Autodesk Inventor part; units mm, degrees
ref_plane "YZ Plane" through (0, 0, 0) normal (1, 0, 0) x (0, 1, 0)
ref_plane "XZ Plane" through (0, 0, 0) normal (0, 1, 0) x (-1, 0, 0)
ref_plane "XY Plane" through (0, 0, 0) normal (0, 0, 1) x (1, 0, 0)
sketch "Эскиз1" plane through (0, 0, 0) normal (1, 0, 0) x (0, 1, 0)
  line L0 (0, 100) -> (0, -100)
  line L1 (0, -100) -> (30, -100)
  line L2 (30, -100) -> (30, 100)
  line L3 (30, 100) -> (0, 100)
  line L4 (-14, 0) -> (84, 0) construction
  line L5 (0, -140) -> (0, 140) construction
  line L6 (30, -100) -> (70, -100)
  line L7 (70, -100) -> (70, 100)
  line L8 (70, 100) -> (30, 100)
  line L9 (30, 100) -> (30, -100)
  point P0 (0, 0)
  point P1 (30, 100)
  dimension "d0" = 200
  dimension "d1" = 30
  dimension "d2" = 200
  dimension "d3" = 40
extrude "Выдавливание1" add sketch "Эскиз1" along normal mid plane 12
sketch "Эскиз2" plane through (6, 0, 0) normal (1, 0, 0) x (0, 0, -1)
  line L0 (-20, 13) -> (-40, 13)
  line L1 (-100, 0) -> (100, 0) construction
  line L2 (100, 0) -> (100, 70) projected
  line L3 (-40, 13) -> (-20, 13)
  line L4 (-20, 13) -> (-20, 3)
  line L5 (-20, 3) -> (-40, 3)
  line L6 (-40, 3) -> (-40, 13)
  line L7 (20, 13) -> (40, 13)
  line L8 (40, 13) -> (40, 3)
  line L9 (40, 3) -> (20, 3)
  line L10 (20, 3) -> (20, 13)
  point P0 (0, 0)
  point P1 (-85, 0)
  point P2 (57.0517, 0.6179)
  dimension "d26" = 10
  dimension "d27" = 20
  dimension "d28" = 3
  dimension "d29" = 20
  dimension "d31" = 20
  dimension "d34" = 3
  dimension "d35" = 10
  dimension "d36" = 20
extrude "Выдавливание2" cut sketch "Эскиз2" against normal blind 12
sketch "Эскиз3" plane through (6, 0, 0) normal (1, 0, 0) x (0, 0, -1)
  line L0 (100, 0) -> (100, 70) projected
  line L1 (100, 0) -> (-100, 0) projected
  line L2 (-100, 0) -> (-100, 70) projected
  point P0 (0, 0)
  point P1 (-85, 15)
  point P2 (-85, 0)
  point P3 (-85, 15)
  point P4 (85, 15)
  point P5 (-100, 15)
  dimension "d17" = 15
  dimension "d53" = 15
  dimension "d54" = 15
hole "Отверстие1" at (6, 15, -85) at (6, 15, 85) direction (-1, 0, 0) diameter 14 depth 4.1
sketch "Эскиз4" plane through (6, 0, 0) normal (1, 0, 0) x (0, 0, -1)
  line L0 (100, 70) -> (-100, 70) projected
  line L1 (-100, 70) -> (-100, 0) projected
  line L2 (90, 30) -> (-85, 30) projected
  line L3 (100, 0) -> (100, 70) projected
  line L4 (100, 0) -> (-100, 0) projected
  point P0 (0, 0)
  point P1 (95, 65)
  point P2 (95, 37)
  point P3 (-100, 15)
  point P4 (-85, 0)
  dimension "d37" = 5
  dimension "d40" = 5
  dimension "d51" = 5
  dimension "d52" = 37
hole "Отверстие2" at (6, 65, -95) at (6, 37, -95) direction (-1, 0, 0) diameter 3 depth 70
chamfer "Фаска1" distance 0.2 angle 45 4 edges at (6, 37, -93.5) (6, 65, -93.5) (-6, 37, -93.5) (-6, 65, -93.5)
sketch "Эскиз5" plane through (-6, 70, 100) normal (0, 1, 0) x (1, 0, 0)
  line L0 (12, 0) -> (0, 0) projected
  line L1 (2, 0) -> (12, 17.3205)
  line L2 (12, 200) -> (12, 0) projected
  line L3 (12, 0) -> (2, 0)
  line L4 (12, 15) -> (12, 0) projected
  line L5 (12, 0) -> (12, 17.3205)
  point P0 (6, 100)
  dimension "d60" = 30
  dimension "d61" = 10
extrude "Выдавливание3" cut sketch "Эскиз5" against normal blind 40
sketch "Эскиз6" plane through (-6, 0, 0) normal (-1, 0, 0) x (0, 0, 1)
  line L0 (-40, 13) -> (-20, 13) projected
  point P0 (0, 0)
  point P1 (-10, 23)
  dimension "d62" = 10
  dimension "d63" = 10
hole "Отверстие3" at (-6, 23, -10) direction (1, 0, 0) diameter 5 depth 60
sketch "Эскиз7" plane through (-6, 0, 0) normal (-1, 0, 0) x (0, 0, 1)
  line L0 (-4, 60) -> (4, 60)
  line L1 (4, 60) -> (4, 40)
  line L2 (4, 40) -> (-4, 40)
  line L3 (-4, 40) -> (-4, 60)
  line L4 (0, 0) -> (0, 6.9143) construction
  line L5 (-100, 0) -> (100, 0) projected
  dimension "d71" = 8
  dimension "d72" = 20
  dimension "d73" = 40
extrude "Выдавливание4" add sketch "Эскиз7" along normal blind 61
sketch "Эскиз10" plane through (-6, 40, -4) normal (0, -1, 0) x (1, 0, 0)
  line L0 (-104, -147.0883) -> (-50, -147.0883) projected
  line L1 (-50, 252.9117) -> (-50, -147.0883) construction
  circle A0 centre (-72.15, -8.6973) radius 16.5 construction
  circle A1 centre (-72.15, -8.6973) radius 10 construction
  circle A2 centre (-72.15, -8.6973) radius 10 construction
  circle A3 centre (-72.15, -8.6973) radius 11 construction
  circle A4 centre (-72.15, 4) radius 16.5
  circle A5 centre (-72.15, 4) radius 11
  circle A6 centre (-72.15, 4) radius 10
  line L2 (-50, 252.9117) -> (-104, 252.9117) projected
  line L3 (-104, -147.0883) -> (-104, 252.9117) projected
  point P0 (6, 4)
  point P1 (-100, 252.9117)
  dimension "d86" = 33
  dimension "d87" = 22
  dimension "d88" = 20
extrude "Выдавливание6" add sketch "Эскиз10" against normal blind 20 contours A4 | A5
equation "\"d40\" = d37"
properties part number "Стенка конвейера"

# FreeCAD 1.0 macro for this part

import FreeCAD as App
import Part
import Sketcher
from FreeCAD import Vector
Q = App.Units.Quantity


def edges_at(feature, points):
    """Names of the edges that pass closest to the given points."""
    edges = feature.Shape.Edges
    near = lambda p: min(range(len(edges)), key=lambda i: edges[i].distToShape(Part.Vertex(*p))[0])
    return sorted({f"Edge{near(p) + 1}" for p in points})

doc = App.newDocument("Part")
params = doc.addObject("Spreadsheet::Sheet", "Params")
for row, (alias, value) in enumerate([
    ("sketch1_height", "200 mm"),
    ("sketch1_width", "70 mm"),
    ("pad1_length", "12 mm"),
    ("sketch2_width", "10 mm"),
    ("sketch2_height", "20 mm"),
    ("pocket1_length", "12 mm"),
    ("sketch3_diameter", "14 mm"),
    ("hole_diameter", "14 mm"),
    ("hole_depth", "4.1 mm"),
    ("sketch4_diameter", "3 mm"),
    ("hole2_diameter", "3 mm"),
    ("hole2_depth", "70 mm"),
    ("chamfer_size", "0.2 mm"),
    ("sketch5_width", "10 mm"),
    ("pocket2_length", "40 mm"),
    ("sketch6_diameter", "5 mm"),
    ("hole3_diameter", "5 mm"),
    ("hole3_depth", "60 mm"),
    ("sketch7_width", "20 mm"),
    ("sketch7_height", "8 mm"),
    ("pad2_length", "61 mm"),
    ("sketch8_diameter", "33 mm"),
    ("sketch8_diameter2", "20 mm"),
    ("pad3_length", "20 mm"),
], start=1):
    params.set(f"A{row}", alias)
    params.set(f"B{row}", "=" + value)
    params.setAlias(f"B{row}", alias)

body = doc.addObject("PartDesign::Body", "Body")

# Sketch on YZ plane
sketch1 = body.newObject("Sketcher::SketchObject", "Sketch")
sketch1.AttachmentSupport = (doc.getObject("YZ_Plane"), [""])
sketch1.MapMode = "FlatFace"
sketch1.addGeometry([
    Part.LineSegment(Vector(0, 100, 0), Vector(0, -100, 0)),
    Part.LineSegment(Vector(0, -100, 0), Vector(70, -100, 0)),
    Part.LineSegment(Vector(70, -100, 0), Vector(70, 100, 0)),
    Part.LineSegment(Vector(70, 100, 0), Vector(0, 100, 0)),
], False)
sketch1.addConstraint([
    Sketcher.Constraint("Coincident", 0, 2, 1, 1),
    Sketcher.Constraint("Coincident", 1, 2, 2, 1),
    Sketcher.Constraint("Coincident", 2, 2, 3, 1),
    Sketcher.Constraint("Coincident", 3, 2, 0, 1),
    Sketcher.Constraint("Vertical", 0),
    Sketcher.Constraint("Horizontal", 1),
    Sketcher.Constraint("Vertical", 2),
    Sketcher.Constraint("Horizontal", 3),
    Sketcher.Constraint("Symmetric", 0, 2, 3, 2, -1, 1),
    Sketcher.Constraint("DistanceY", 0, 2, 0, 1, 200.0),
    Sketcher.Constraint("DistanceX", 1, 1, 1, 2, 70.0),
])
sketch1.setExpression("Constraints[9]", "Params.sketch1_height")
sketch1.setExpression("Constraints[10]", "Params.sketch1_width")
pad1 = body.newObject("PartDesign::Pad", "Pad")
pad1.Profile = sketch1
pad1.setExpression("Length", "Params.pad1_length")
pad1.Midplane = True

# Sketch on YZ plane
sketch2 = body.newObject("Sketcher::SketchObject", "Sketch001")
sketch2.AttachmentSupport = (doc.getObject("YZ_Plane"), [""])
sketch2.MapMode = "FlatFace"
sketch2.AttachmentOffset = App.Placement(Vector(0, 0, 6), App.Rotation())
sketch2.addGeometry([
    Part.LineSegment(Vector(3, 20, 0), Vector(13, 20, 0)),  # 0
    Part.LineSegment(Vector(13, 20, 0), Vector(13, 40, 0)),  # 1
    Part.LineSegment(Vector(13, 40, 0), Vector(3, 40, 0)),  # 2
    Part.LineSegment(Vector(3, 40, 0), Vector(3, 20, 0)),  # 3
    Part.LineSegment(Vector(13, -40, 0), Vector(13, -20, 0)),  # 4
    Part.LineSegment(Vector(13, -20, 0), Vector(3, -20, 0)),  # 5
    Part.LineSegment(Vector(3, -20, 0), Vector(3, -40, 0)),  # 6
    Part.LineSegment(Vector(3, -40, 0), Vector(13, -40, 0)),  # 7
], False)
sketch2.addConstraint([
    Sketcher.Constraint("Coincident", 0, 2, 1, 1),
    Sketcher.Constraint("Coincident", 1, 2, 2, 1),
    Sketcher.Constraint("Coincident", 2, 2, 3, 1),
    Sketcher.Constraint("Coincident", 3, 2, 0, 1),
    Sketcher.Constraint("Coincident", 4, 2, 5, 1),
    Sketcher.Constraint("Coincident", 5, 2, 6, 1),
    Sketcher.Constraint("Coincident", 6, 2, 7, 1),
    Sketcher.Constraint("Coincident", 7, 2, 4, 1),
    Sketcher.Constraint("Horizontal", 0),
    Sketcher.Constraint("Vertical", 1),
    Sketcher.Constraint("Horizontal", 2),
    Sketcher.Constraint("Vertical", 3),
    Sketcher.Constraint("Vertical", 4),
    Sketcher.Constraint("Horizontal", 5),
    Sketcher.Constraint("Vertical", 6),
    Sketcher.Constraint("Horizontal", 7),
    Sketcher.Constraint("Symmetric", 0, 2, 4, 2, -1),
    Sketcher.Constraint("Symmetric", 2, 2, 6, 2, -1),
    Sketcher.Constraint("DistanceX", 0, 1, 0, 2, 10.0),
    Sketcher.Constraint("DistanceY", 1, 1, 1, 2, 20.0),
    Sketcher.Constraint("DistanceY", -1, 1, 0, 2, 20.0),
    Sketcher.Constraint("DistanceX", -1, 1, 2, 2, 3.0),
])
sketch2.setExpression("Constraints[18]", "Params.sketch2_width")
sketch2.setExpression("Constraints[19]", "Params.sketch2_height")
pocket1 = body.newObject("PartDesign::Pocket", "Pocket")
pocket1.Profile = sketch2
pocket1.setExpression("Length", "Params.pocket1_length")

# Sketch on YZ plane
sketch3 = body.newObject("Sketcher::SketchObject", "Sketch002")
sketch3.AttachmentSupport = (doc.getObject("YZ_Plane"), [""])
sketch3.MapMode = "FlatFace"
sketch3.AttachmentOffset = App.Placement(Vector(0, 0, 6), App.Rotation())
sketch3.addGeometry([
    Part.Circle(Vector(15, -85, 0), Vector(0, 0, 1), 7),
    Part.Circle(Vector(15, 85, 0), Vector(0, 0, 1), 7),
], False)
sketch3.addConstraint([
    Sketcher.Constraint("Equal", 0, 1),
    Sketcher.Constraint("Symmetric", 0, 3, 1, 3, -1),
    Sketcher.Constraint("Diameter", 0, 14.0),
    Sketcher.Constraint("DistanceX", -1, 1, 0, 3, 15.0),
    Sketcher.Constraint("DistanceY", 0, 3, -1, 1, 85.0),
])
sketch3.setExpression("Constraints[2]", "Params.sketch3_diameter")
doc.recompute()
hole = body.newObject("PartDesign::Hole", "Hole")
hole.Profile = sketch3
hole.ThreadType = "None"
hole.setExpression("Diameter", "Params.hole_diameter")
hole.DepthType = "Dimension"
hole.setExpression("Depth", "Params.hole_depth")
hole.DrillPoint = "Flat"

# Sketch on YZ plane
sketch4 = body.newObject("Sketcher::SketchObject", "Sketch003")
sketch4.AttachmentSupport = (doc.getObject("YZ_Plane"), [""])
sketch4.MapMode = "FlatFace"
sketch4.AttachmentOffset = App.Placement(Vector(0, 0, 6), App.Rotation())
sketch4.addGeometry([
    Part.Circle(Vector(65, -95, 0), Vector(0, 0, 1), 1.5),
    Part.Circle(Vector(37, -95, 0), Vector(0, 0, 1), 1.5),
], False)
sketch4.addConstraint([
    Sketcher.Constraint("Equal", 0, 1),
    Sketcher.Constraint("Horizontal", 0, 3, 1, 3),
    Sketcher.Constraint("Diameter", 0, 3.0),
    Sketcher.Constraint("DistanceX", -1, 1, 0, 3, 65.0),
    Sketcher.Constraint("DistanceY", 0, 3, -1, 1, 95.0),
    Sketcher.Constraint("DistanceX", -1, 1, 1, 3, 37.0),
])
sketch4.setExpression("Constraints[2]", "Params.sketch4_diameter")
doc.recompute()
hole2 = body.newObject("PartDesign::Hole", "Hole001")
hole2.Profile = sketch4
hole2.ThreadType = "None"
hole2.setExpression("Diameter", "Params.hole2_diameter")
hole2.DepthType = "Dimension"
hole2.setExpression("Depth", "Params.hole2_depth")
hole2.DrillPoint = "Flat"
doc.recompute()

chamfer = body.newObject("PartDesign::Chamfer", "Chamfer")
chamfer.Base = (hole2, edges_at(hole2, [
    (6, 37, -93.5),
    (6, 65, -93.5),
    (-6, 37, -93.5),
    (-6, 65, -93.5),
]))
chamfer.setExpression("Size", "Params.chamfer_size")

# Sketch on XZ plane
sketch5 = body.newObject("Sketcher::SketchObject", "Sketch004")
sketch5.AttachmentSupport = (doc.getObject("XZ_Plane"), [""])
sketch5.MapMode = "FlatFace"
sketch5.AttachmentOffset = App.Placement(Vector(0, 0, -70), App.Rotation())
sketch5.addGeometry([
    Part.LineSegment(Vector(-4, 100, 0), Vector(6, 100, 0)),
    Part.LineSegment(Vector(6, 100, 0), Vector(6, 82.6795, 0)),
    Part.LineSegment(Vector(6, 82.6795, 0), Vector(-4, 100, 0)),
], False)
sketch5.addConstraint([
    Sketcher.Constraint("Coincident", 0, 2, 1, 1),
    Sketcher.Constraint("Coincident", 1, 2, 2, 1),
    Sketcher.Constraint("Coincident", 2, 2, 0, 1),
    Sketcher.Constraint("Horizontal", 0),
    Sketcher.Constraint("Vertical", 1),
    Sketcher.Constraint("DistanceX", 0, 1, 0, 2, 10.0),
    Sketcher.Constraint("Angle", 2, Q("120 deg")),
    Sketcher.Constraint("DistanceX", -1, 1, 0, 2, 6.0),
    Sketcher.Constraint("DistanceY", -1, 1, 0, 2, 100.0),
])
sketch5.setExpression("Constraints[5]", "Params.sketch5_width")
pocket2 = body.newObject("PartDesign::Pocket", "Pocket001")
pocket2.Profile = sketch5
pocket2.setExpression("Length", "Params.pocket2_length")
pocket2.Reversed = True

# Sketch on YZ plane
sketch6 = body.newObject("Sketcher::SketchObject", "Sketch005")
sketch6.AttachmentSupport = (doc.getObject("YZ_Plane"), [""])
sketch6.MapMode = "FlatFace"
sketch6.AttachmentOffset = App.Placement(Vector(0, 0, -6), App.Rotation())
sketch6.addGeometry(Part.Circle(Vector(23, -10, 0), Vector(0, 0, 1), 2.5), False)
sketch6.addConstraint([
    Sketcher.Constraint("Diameter", 0, 5.0),
    Sketcher.Constraint("DistanceX", -1, 1, 0, 3, 23.0),
    Sketcher.Constraint("DistanceY", 0, 3, -1, 1, 10.0),
])
sketch6.setExpression("Constraints[0]", "Params.sketch6_diameter")
doc.recompute()
hole3 = body.newObject("PartDesign::Hole", "Hole002")
hole3.Profile = sketch6
hole3.ThreadType = "None"
hole3.setExpression("Diameter", "Params.hole3_diameter")
hole3.DepthType = "Dimension"
hole3.setExpression("Depth", "Params.hole3_depth")
hole3.DrillPoint = "Flat"
hole3.Reversed = True

# Sketch on YZ plane
sketch7 = body.newObject("Sketcher::SketchObject", "Sketch006")
sketch7.AttachmentSupport = (doc.getObject("YZ_Plane"), [""])
sketch7.MapMode = "FlatFace"
sketch7.AttachmentOffset = App.Placement(Vector(0, 0, -6), App.Rotation())
sketch7.addGeometry([
    Part.LineSegment(Vector(60, 4, 0), Vector(60, -4, 0)),
    Part.LineSegment(Vector(60, -4, 0), Vector(40, -4, 0)),
    Part.LineSegment(Vector(40, -4, 0), Vector(40, 4, 0)),
    Part.LineSegment(Vector(40, 4, 0), Vector(60, 4, 0)),
], False)
sketch7.addConstraint([
    Sketcher.Constraint("Coincident", 0, 2, 1, 1),
    Sketcher.Constraint("Coincident", 1, 2, 2, 1),
    Sketcher.Constraint("Coincident", 2, 2, 3, 1),
    Sketcher.Constraint("Coincident", 3, 2, 0, 1),
    Sketcher.Constraint("Vertical", 0),
    Sketcher.Constraint("Horizontal", 1),
    Sketcher.Constraint("Vertical", 2),
    Sketcher.Constraint("Horizontal", 3),
    Sketcher.Constraint("DistanceX", 1, 2, 1, 1, 20.0),
    Sketcher.Constraint("DistanceY", 0, 2, 0, 1, 8.0),
    Sketcher.Constraint("DistanceX", -1, 1, 1, 2, 40.0),
    Sketcher.Constraint("DistanceY", 0, 2, -1, 1, 4.0),
])
sketch7.setExpression("Constraints[8]", "Params.sketch7_width")
sketch7.setExpression("Constraints[9]", "Params.sketch7_height")
pad2 = body.newObject("PartDesign::Pad", "Pad001")
pad2.Profile = sketch7
pad2.setExpression("Length", "Params.pad2_length")
pad2.Reversed = True

# Sketch on XZ plane
sketch8 = body.newObject("Sketcher::SketchObject", "Sketch007")
sketch8.AttachmentSupport = (doc.getObject("XZ_Plane"), [""])
sketch8.MapMode = "FlatFace"
sketch8.AttachmentOffset = App.Placement(Vector(0, 0, -40), App.Rotation())
sketch8.addGeometry([
    Part.Circle(Vector(-78.15, 0, 0), Vector(0, 0, 1), 16.5),
    Part.Circle(Vector(-78.15, 0, 0), Vector(0, 0, 1), 10),
], False)
sketch8.addConstraint([
    Sketcher.Constraint("Coincident", 1, 3, 0, 3),
    Sketcher.Constraint("PointOnObject", 0, 3, -1),
    Sketcher.Constraint("Diameter", 0, 33.0),
    Sketcher.Constraint("Diameter", 1, 20.0),
    Sketcher.Constraint("DistanceX", 0, 3, -1, 1, 78.15),
])
sketch8.setExpression("Constraints[2]", "Params.sketch8_diameter")
sketch8.setExpression("Constraints[3]", "Params.sketch8_diameter2")
pad3 = body.newObject("PartDesign::Pad", "Pad002")
pad3.Profile = sketch8
pad3.setExpression("Length", "Params.pad3_length")
pad3.Reversed = True

doc.recompute()
